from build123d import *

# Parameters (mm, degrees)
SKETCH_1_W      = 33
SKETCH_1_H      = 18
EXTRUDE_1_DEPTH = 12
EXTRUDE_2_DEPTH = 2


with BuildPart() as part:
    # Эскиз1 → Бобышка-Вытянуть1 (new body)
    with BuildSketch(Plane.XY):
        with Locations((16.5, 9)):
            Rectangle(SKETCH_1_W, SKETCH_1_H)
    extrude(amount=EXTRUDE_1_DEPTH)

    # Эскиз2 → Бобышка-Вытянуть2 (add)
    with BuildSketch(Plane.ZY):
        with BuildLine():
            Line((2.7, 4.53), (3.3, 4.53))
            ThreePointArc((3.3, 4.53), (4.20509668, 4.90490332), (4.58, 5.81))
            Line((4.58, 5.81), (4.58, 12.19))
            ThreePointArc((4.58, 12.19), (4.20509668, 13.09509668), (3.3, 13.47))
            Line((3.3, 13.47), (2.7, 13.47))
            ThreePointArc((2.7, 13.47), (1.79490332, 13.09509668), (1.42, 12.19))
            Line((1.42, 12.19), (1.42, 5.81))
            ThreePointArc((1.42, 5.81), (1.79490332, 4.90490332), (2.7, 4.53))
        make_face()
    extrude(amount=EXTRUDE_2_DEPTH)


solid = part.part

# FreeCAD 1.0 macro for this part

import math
import FreeCAD as App
import Part
import Sketcher
from FreeCAD import Vector


def add_polygon(sketch, points):
    """Adds a closed chain of lines whose ends are joined by coincident constraints."""
    first, n = sketch.GeometryCount, len(points)
    for a, b in zip(points, points[1:] + points[:1]):
        sketch.addGeometry(Part.LineSegment(App.Vector(*a, 0), App.Vector(*b, 0)), False)
    for i in range(n):
        sketch.addConstraint(Sketcher.Constraint("Coincident", first + i, 2, first + (i + 1) % n, 1))

doc = App.newDocument("Part")
body = doc.addObject("PartDesign::Body", "Body")

sketch1 = doc.addObject("Sketcher::SketchObject", "Sketch")
body.addObject(sketch1)
sketch1.AttachmentSupport = (doc.XY_Plane, [""])
sketch1.MapMode = "FlatFace"
add_polygon(sketch1, [(0, 18), (0, 0), (33, 0), (33, 18)])
sketch1.addConstraint([
    Sketcher.Constraint("Vertical", 0),
    Sketcher.Constraint("Horizontal", 1),
    Sketcher.Constraint("Vertical", 2),
    Sketcher.Constraint("Horizontal", 3),
    Sketcher.Constraint("Coincident", 0, 2, -1, 1),
    Sketcher.Constraint("DistanceX", 1, 1, 1, 2, 33.0),
    Sketcher.Constraint("DistanceY", 0, 2, 0, 1, 18.0),
])
pad1 = doc.addObject("PartDesign::Pad", "Pad")
body.addObject(pad1)
pad1.Profile = sketch1
pad1.Length = 12

sketch2 = doc.addObject("Sketcher::SketchObject", "Sketch001")
body.addObject(sketch2)
sketch2.AttachmentSupport = (doc.YZ_Plane, [""])
sketch2.MapMode = "FlatFace"
sketch2.addGeometry([
    Part.LineSegment(Vector(4.53, 2.7, 0), Vector(4.53, 3.3, 0)),
    Part.ArcOfCircle(Part.Circle(Vector(5.81, 3.3, 0), Vector(0, 0, 1), 1.28), math.radians(90), math.radians(180)),
    Part.LineSegment(Vector(5.81, 4.58, 0), Vector(12.19, 4.58, 0)),
    Part.ArcOfCircle(Part.Circle(Vector(12.19, 3.3, 0), Vector(0, 0, 1), 1.28), math.radians(0), math.radians(90)),
    Part.LineSegment(Vector(13.47, 3.3, 0), Vector(13.47, 2.7, 0)),
    Part.ArcOfCircle(Part.Circle(Vector(12.19, 2.7, 0), Vector(0, 0, 1), 1.28), math.radians(-90), math.radians(0)),
    Part.LineSegment(Vector(12.19, 1.42, 0), Vector(5.81, 1.42, 0)),
    Part.ArcOfCircle(Part.Circle(Vector(5.81, 2.7, 0), Vector(0, 0, 1), 1.28), math.radians(180), math.radians(270)),
], False)
sketch2.addConstraint([
    Sketcher.Constraint("Tangent", 0, 2, 1, 2),
    Sketcher.Constraint("Tangent", 1, 1, 2, 1),
    Sketcher.Constraint("Tangent", 2, 2, 3, 2),
    Sketcher.Constraint("Tangent", 3, 1, 4, 1),
    Sketcher.Constraint("Tangent", 4, 2, 5, 2),
    Sketcher.Constraint("Tangent", 5, 1, 6, 1),
    Sketcher.Constraint("Tangent", 6, 2, 7, 2),
    Sketcher.Constraint("Tangent", 7, 1, 0, 1),
    Sketcher.Constraint("Vertical", 0),
    Sketcher.Constraint("Horizontal", 2),
    Sketcher.Constraint("Vertical", 4),
    Sketcher.Constraint("Horizontal", 6),
    Sketcher.Constraint("Equal", 1, 3),
    Sketcher.Constraint("Equal", 3, 5),
    Sketcher.Constraint("Equal", 5, 7),
    Sketcher.Constraint("Radius", 1, 1.28),
    Sketcher.Constraint("DistanceY", 0, 1, 0, 2, 0.6),
    Sketcher.Constraint("DistanceX", 2, 1, 2, 2, 6.38),
    Sketcher.Constraint("DistanceY", -1, 1, 1, 3, 3.3),
    Sketcher.Constraint("DistanceX", -1, 1, 1, 3, 5.81),
])
pad2 = doc.addObject("PartDesign::Pad", "Pad001")
body.addObject(pad2)
pad2.Profile = sketch2
pad2.Length = 2
pad2.Reversed = True

doc.recompute()
